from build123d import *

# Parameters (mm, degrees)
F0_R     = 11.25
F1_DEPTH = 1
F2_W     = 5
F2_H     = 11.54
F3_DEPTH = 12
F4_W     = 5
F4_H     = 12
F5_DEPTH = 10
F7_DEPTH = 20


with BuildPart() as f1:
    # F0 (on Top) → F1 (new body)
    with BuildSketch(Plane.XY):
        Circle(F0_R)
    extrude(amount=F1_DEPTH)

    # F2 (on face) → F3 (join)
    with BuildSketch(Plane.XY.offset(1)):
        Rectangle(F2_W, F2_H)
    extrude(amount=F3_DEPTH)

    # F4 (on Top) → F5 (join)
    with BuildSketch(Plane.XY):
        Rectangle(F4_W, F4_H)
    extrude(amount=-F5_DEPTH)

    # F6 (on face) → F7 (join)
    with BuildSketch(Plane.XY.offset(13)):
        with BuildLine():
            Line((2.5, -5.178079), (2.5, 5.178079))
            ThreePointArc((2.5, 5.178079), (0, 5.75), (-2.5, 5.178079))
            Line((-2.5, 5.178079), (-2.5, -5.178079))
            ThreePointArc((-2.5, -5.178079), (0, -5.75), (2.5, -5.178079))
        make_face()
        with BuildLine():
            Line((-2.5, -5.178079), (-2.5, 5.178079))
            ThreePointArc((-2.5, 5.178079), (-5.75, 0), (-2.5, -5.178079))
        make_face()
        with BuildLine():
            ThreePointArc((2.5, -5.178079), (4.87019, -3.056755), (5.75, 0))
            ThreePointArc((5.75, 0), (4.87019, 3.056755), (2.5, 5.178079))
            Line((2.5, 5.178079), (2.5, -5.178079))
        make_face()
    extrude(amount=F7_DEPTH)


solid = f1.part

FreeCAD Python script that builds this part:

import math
import FreeCAD as App
import Part
import Sketcher

V = App.Vector

doc = App.newDocument("Part")
body = doc.addObject("PartDesign::Body", "Body")

# Sketch on XY plane
sketch1 = body.newObject("Sketcher::SketchObject", "Sketch")
sketch1.AttachmentSupport = (doc.getObject("XY_Plane"), [""])
sketch1.MapMode = "FlatFace"
sketch1.addGeometry(Part.Circle(V(0, 0, 0), V(0, 0, 1), 11), False)
sketch1.addConstraint(Sketcher.Constraint("Coincident", 0, 3, -1, 1))
sketch1.addConstraint(Sketcher.Constraint("Diameter", 0, 22.5))
pad1 = body.newObject("PartDesign::Pad", "Pad")
pad1.Profile = sketch1
pad1.Length = 1

# Sketch on XY plane
sketch2 = body.newObject("Sketcher::SketchObject", "Sketch001")
sketch2.AttachmentSupport = (doc.getObject("XY_Plane"), [""])
sketch2.MapMode = "FlatFace"
sketch2.AttachmentOffset = App.Placement(V(0, 0, 1), App.Rotation())
sketch2.addGeometry(Part.LineSegment(V(-2, 6, 0), V(-2, -6, 0)), False)
sketch2.addGeometry(Part.LineSegment(V(-2, -6, 0), V(2, -6, 0)), False)
sketch2.addGeometry(Part.LineSegment(V(2, -6, 0), V(2, 6, 0)), False)
sketch2.addGeometry(Part.LineSegment(V(2, 6, 0), V(-2, 6, 0)), False)
sketch2.addConstraint(Sketcher.Constraint("Coincident", 0, 2, 1, 1))
sketch2.addConstraint(Sketcher.Constraint("Coincident", 1, 2, 2, 1))
sketch2.addConstraint(Sketcher.Constraint("Coincident", 2, 2, 3, 1))
sketch2.addConstraint(Sketcher.Constraint("Coincident", 3, 2, 0, 1))
sketch2.addConstraint(Sketcher.Constraint("Vertical", 0))
sketch2.addConstraint(Sketcher.Constraint("Horizontal", 1))
sketch2.addConstraint(Sketcher.Constraint("Vertical", 2))
sketch2.addConstraint(Sketcher.Constraint("Horizontal", 3))
sketch2.addConstraint(Sketcher.Constraint("Symmetric", 0, 2, 2, 2, -1, 1))
sketch2.addConstraint(Sketcher.Constraint("DistanceX", 1, 1, 1, 2, 5.0))
sketch2.addConstraint(Sketcher.Constraint("DistanceY", 0, 2, 0, 1, 11.54))
pad2 = body.newObject("PartDesign::Pad", "Pad001")
pad2.Profile = sketch2
pad2.Length = 12

# Sketch on XY plane
sketch3 = body.newObject("Sketcher::SketchObject", "Sketch002")
sketch3.AttachmentSupport = (doc.getObject("XY_Plane"), [""])
sketch3.MapMode = "FlatFace"
sketch3.addGeometry(Part.LineSegment(V(-2, 6, 0), V(-2, -6, 0)), False)
sketch3.addGeometry(Part.LineSegment(V(-2, -6, 0), V(2, -6, 0)), False)
sketch3.addGeometry(Part.LineSegment(V(2, -6, 0), V(2, 6, 0)), False)
sketch3.addGeometry(Part.LineSegment(V(2, 6, 0), V(-2, 6, 0)), False)
sketch3.addConstraint(Sketcher.Constraint("Coincident", 0, 2, 1, 1))
sketch3.addConstraint(Sketcher.Constraint("Coincident", 1, 2, 2, 1))
sketch3.addConstraint(Sketcher.Constraint("Coincident", 2, 2, 3, 1))
sketch3.addConstraint(Sketcher.Constraint("Coincident", 3, 2, 0, 1))
sketch3.addConstraint(Sketcher.Constraint("Vertical", 0))
sketch3.addConstraint(Sketcher.Constraint("Horizontal", 1))
sketch3.addConstraint(Sketcher.Constraint("Vertical", 2))
sketch3.addConstraint(Sketcher.Constraint("Horizontal", 3))
sketch3.addConstraint(Sketcher.Constraint("Symmetric", 0, 2, 2, 2, -1, 1))
sketch3.addConstraint(Sketcher.Constraint("DistanceX", 1, 1, 1, 2, 5.0))
sketch3.addConstraint(Sketcher.Constraint("DistanceY", 0, 2, 0, 1, 12.0))
pad3 = body.newObject("PartDesign::Pad", "Pad002")
pad3.Profile = sketch3
pad3.Length = 10
pad3.Reversed = True

# Sketch on XY plane
sketch4 = body.newObject("Sketcher::SketchObject", "Sketch003")
sketch4.AttachmentSupport = (doc.getObject("XY_Plane"), [""])
sketch4.MapMode = "FlatFace"
sketch4.AttachmentOffset = App.Placement(V(0, 0, 13), App.Rotation())
sketch4.addGeometry(Part.ArcOfCircle(Part.Circle(V(0, 0, 0), V(0, 0, 1), 6), math.radians(64), math.radians(116)), False)
sketch4.addGeometry(Part.ArcOfCircle(Part.Circle(V(0, 0, 0), V(0, 0, 1), 6), math.radians(116), math.radians(244)), False)
sketch4.addGeometry(Part.ArcOfCircle(Part.Circle(V(0, 0, 0), V(0, 0, 1), 6), math.radians(-116), math.radians(-64)), False)
sketch4.addGeometry(Part.ArcOfCircle(Part.Circle(V(0, 0, 0), V(0, 0, 1), 6), math.radians(-64), math.radians(0)), False)
sketch4.addGeometry(Part.ArcOfCircle(Part.Circle(V(0, 0, 0), V(0, 0, 1), 6), math.radians(0), math.radians(64)), False)
sketch4.addConstraint(Sketcher.Constraint("Tangent", 0, 2, 1, 1))
sketch4.addConstraint(Sketcher.Constraint("Tangent", 1, 2, 2, 1))
sketch4.addConstraint(Sketcher.Constraint("Tangent", 2, 2, 3, 1))
sketch4.addConstraint(Sketcher.Constraint("Tangent", 3, 2, 4, 1))
sketch4.addConstraint(Sketcher.Constraint("Tangent", 4, 2, 0, 1))
sketch4.addConstraint(Sketcher.Constraint("Coincident", 0, 3, -1, 1))
sketch4.addConstraint(Sketcher.Constraint("Coincident", 2, 3, -1, 1))
sketch4.addConstraint(Sketcher.Constraint("PointOnObject", 3, 2, -1))
sketch4.addConstraint(Sketcher.Constraint("Horizontal", 1, 2, 2, 2))
sketch4.addConstraint(Sketcher.Constraint("Horizontal", 0, 2, 4, 2))
sketch4.addConstraint(Sketcher.Constraint("Vertical", 0, 2, 1, 2))
sketch4.addConstraint(Sketcher.Constraint("Radius", 0, 5.750002))
sketch4.addConstraint(Sketcher.Constraint("DistanceX", 1, 2, 2, 2, 5.0))
pad4 = body.newObject("PartDesign::Pad", "Pad003")
pad4.Profile = sketch4
pad4.Length = 20

doc.recompute()
